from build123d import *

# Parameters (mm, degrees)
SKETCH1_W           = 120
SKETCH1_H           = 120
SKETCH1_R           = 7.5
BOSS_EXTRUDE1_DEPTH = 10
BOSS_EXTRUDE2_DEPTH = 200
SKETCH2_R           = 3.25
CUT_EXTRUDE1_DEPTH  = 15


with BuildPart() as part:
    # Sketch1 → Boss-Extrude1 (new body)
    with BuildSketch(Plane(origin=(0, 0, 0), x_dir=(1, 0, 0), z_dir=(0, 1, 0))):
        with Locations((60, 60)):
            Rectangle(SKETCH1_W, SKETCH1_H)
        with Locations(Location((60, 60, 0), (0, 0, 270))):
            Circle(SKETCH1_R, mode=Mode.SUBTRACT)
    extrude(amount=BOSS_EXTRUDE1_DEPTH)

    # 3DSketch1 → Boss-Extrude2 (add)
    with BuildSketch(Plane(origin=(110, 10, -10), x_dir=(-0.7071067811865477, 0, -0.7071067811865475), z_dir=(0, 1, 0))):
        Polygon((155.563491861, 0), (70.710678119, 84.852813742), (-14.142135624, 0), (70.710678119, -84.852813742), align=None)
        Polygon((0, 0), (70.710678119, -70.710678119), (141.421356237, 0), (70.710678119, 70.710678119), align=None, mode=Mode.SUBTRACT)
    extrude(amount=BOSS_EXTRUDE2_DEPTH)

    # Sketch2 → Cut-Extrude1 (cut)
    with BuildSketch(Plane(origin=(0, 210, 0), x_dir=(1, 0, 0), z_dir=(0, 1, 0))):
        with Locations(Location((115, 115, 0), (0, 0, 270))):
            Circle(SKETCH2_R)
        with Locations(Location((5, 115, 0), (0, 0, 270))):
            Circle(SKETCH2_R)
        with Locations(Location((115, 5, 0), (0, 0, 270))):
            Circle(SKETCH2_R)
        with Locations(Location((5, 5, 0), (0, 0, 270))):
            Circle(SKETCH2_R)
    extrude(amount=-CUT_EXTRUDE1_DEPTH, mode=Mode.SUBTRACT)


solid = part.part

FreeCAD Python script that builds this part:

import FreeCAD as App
import Part
import Sketcher

doc = App.newDocument("Part")
body = doc.addObject("PartDesign::Body", "Body")

sketch1 = body.newObject("Sketcher::SketchObject", "Sketch")
sketch1.AttachmentSupport = (doc.getObject("XZ_Plane"), [""])
sketch1.MapMode = "FlatFace"
sketch1.addGeometry([
    Part.LineSegment(App.Vector(0, -120, 0), App.Vector(0, 0, 0)),
    Part.LineSegment(App.Vector(0, 0, 0), App.Vector(120, 0, 0)),
    Part.LineSegment(App.Vector(120, 0, 0), App.Vector(120, -120, 0)),
    Part.LineSegment(App.Vector(120, -120, 0), App.Vector(0, -120, 0)),
    Part.Circle(App.Vector(60, -60, 0), App.Vector(0, 0, 1), 8),
], False)
sketch1.addConstraint([
    Sketcher.Constraint("Coincident", 0, 2, 1, 1),
    Sketcher.Constraint("Coincident", 1, 2, 2, 1),
    Sketcher.Constraint("Coincident", 2, 2, 3, 1),
    Sketcher.Constraint("Coincident", 3, 2, 0, 1),
    Sketcher.Constraint("Vertical", 0),
    Sketcher.Constraint("Horizontal", 1),
    Sketcher.Constraint("Vertical", 2),
    Sketcher.Constraint("Horizontal", 3),
    Sketcher.Constraint("Coincident", 0, 2, -1, 1),
    Sketcher.Constraint("Equal", 3, 0),
    Sketcher.Constraint("Diameter", 4, 15.0),
    Sketcher.Constraint("DistanceX", 1, 1, 1, 2, 120.0),
    Sketcher.Constraint("DistanceX", -1, 1, 4, 3, 60.0),
    Sketcher.Constraint("DistanceY", 4, 3, -1, 1, 60.0),
])
pad1 = body.newObject("PartDesign::Pad", "Pad")
pad1.Profile = sketch1
pad1.Length = 10
pad1.Reversed = True

sketch2 = body.newObject("Sketcher::SketchObject", "Sketch001")
sketch2.AttachmentSupport = (doc.getObject("XZ_Plane"), [""])
sketch2.MapMode = "FlatFace"
sketch2.AttachmentOffset = App.Placement(App.Vector(0, 0, -10), App.Rotation())
sketch2.addGeometry([
    Part.LineSegment(App.Vector(0, -120, 0), App.Vector(0, 0, 0)),
    Part.LineSegment(App.Vector(0, 0, 0), App.Vector(120, 0, 0)),
    Part.LineSegment(App.Vector(120, 0, 0), App.Vector(120, -120, 0)),
    Part.LineSegment(App.Vector(120, -120, 0), App.Vector(0, -120, 0)),
    Part.LineSegment(App.Vector(110, -110, 0), App.Vector(110, -10, 0)),
    Part.LineSegment(App.Vector(110, -10, 0), App.Vector(10, -10, 0)),
    Part.LineSegment(App.Vector(10, -10, 0), App.Vector(10, -110, 0)),
    Part.LineSegment(App.Vector(10, -110, 0), App.Vector(110, -110, 0)),
], False)
sketch2.addConstraint([
    Sketcher.Constraint("Coincident", 0, 2, 1, 1),
    Sketcher.Constraint("Coincident", 1, 2, 2, 1),
    Sketcher.Constraint("Coincident", 2, 2, 3, 1),
    Sketcher.Constraint("Coincident", 3, 2, 0, 1),
    Sketcher.Constraint("Coincident", 4, 2, 5, 1),
    Sketcher.Constraint("Coincident", 5, 2, 6, 1),
    Sketcher.Constraint("Coincident", 6, 2, 7, 1),
    Sketcher.Constraint("Coincident", 7, 2, 4, 1),
    Sketcher.Constraint("Vertical", 0),
    Sketcher.Constraint("Horizontal", 1),
    Sketcher.Constraint("Vertical", 2),
    Sketcher.Constraint("Horizontal", 3),
    Sketcher.Constraint("Vertical", 4),
    Sketcher.Constraint("Horizontal", 5),
    Sketcher.Constraint("Vertical", 6),
    Sketcher.Constraint("Horizontal", 7),
    Sketcher.Constraint("Coincident", 0, 2, -1, 1),
    Sketcher.Constraint("Equal", 3, 0),
    Sketcher.Constraint("Equal", 7, 4),
    Sketcher.Constraint("DistanceX", 1, 1, 1, 2, 120.0),
    Sketcher.Constraint("DistanceX", 5, 2, 5, 1, 100.0),
    Sketcher.Constraint("DistanceX", -1, 1, 4, 2, 110.0),
    Sketcher.Constraint("DistanceY", 4, 2, -1, 1, 10.0),
])
pad2 = body.newObject("PartDesign::Pad", "Pad001")
pad2.Profile = sketch2
pad2.Length = 200
pad2.Reversed = True

sketch3 = body.newObject("Sketcher::SketchObject", "Sketch002")
sketch3.AttachmentSupport = (doc.getObject("XZ_Plane"), [""])
sketch3.MapMode = "FlatFace"
sketch3.AttachmentOffset = App.Placement(App.Vector(0, 0, -210), App.Rotation())
sketch3.addGeometry([
    Part.Circle(App.Vector(115, -115, 0), App.Vector(0, 0, 1), 3.2),
    Part.Circle(App.Vector(5, -115, 0), App.Vector(0, 0, 1), 3.2),
    Part.Circle(App.Vector(115, -5, 0), App.Vector(0, 0, 1), 3.2),
    Part.Circle(App.Vector(5, -5, 0), App.Vector(0, 0, 1), 3.2),
], False)
sketch3.addConstraint([
    Sketcher.Constraint("Equal", 0, 1),
    Sketcher.Constraint("Equal", 1, 2),
    Sketcher.Constraint("Equal", 2, 3),
    Sketcher.Constraint("Horizontal", 0, 3, 1, 3),
    Sketcher.Constraint("Horizontal", 2, 3, 3, 3),
    Sketcher.Constraint("Vertical", 0, 3, 2, 3),
    Sketcher.Constraint("Vertical", 1, 3, 3, 3),
    Sketcher.Constraint("Diameter", 0, 6.5),
    Sketcher.Constraint("DistanceX", -1, 1, 0, 3, 115.0),
    Sketcher.Constraint("DistanceY", 0, 3, -1, 1, 115.0),
    Sketcher.Constraint("DistanceX", -1, 1, 1, 3, 5.0),
    Sketcher.Constraint("DistanceY", 2, 3, -1, 1, 5.0),
])
pocket1 = body.newObject("PartDesign::Pocket", "Pocket")
pocket1.Profile = sketch3
pocket1.Length = 15
pocket1.Reversed = True

doc.recompute()
